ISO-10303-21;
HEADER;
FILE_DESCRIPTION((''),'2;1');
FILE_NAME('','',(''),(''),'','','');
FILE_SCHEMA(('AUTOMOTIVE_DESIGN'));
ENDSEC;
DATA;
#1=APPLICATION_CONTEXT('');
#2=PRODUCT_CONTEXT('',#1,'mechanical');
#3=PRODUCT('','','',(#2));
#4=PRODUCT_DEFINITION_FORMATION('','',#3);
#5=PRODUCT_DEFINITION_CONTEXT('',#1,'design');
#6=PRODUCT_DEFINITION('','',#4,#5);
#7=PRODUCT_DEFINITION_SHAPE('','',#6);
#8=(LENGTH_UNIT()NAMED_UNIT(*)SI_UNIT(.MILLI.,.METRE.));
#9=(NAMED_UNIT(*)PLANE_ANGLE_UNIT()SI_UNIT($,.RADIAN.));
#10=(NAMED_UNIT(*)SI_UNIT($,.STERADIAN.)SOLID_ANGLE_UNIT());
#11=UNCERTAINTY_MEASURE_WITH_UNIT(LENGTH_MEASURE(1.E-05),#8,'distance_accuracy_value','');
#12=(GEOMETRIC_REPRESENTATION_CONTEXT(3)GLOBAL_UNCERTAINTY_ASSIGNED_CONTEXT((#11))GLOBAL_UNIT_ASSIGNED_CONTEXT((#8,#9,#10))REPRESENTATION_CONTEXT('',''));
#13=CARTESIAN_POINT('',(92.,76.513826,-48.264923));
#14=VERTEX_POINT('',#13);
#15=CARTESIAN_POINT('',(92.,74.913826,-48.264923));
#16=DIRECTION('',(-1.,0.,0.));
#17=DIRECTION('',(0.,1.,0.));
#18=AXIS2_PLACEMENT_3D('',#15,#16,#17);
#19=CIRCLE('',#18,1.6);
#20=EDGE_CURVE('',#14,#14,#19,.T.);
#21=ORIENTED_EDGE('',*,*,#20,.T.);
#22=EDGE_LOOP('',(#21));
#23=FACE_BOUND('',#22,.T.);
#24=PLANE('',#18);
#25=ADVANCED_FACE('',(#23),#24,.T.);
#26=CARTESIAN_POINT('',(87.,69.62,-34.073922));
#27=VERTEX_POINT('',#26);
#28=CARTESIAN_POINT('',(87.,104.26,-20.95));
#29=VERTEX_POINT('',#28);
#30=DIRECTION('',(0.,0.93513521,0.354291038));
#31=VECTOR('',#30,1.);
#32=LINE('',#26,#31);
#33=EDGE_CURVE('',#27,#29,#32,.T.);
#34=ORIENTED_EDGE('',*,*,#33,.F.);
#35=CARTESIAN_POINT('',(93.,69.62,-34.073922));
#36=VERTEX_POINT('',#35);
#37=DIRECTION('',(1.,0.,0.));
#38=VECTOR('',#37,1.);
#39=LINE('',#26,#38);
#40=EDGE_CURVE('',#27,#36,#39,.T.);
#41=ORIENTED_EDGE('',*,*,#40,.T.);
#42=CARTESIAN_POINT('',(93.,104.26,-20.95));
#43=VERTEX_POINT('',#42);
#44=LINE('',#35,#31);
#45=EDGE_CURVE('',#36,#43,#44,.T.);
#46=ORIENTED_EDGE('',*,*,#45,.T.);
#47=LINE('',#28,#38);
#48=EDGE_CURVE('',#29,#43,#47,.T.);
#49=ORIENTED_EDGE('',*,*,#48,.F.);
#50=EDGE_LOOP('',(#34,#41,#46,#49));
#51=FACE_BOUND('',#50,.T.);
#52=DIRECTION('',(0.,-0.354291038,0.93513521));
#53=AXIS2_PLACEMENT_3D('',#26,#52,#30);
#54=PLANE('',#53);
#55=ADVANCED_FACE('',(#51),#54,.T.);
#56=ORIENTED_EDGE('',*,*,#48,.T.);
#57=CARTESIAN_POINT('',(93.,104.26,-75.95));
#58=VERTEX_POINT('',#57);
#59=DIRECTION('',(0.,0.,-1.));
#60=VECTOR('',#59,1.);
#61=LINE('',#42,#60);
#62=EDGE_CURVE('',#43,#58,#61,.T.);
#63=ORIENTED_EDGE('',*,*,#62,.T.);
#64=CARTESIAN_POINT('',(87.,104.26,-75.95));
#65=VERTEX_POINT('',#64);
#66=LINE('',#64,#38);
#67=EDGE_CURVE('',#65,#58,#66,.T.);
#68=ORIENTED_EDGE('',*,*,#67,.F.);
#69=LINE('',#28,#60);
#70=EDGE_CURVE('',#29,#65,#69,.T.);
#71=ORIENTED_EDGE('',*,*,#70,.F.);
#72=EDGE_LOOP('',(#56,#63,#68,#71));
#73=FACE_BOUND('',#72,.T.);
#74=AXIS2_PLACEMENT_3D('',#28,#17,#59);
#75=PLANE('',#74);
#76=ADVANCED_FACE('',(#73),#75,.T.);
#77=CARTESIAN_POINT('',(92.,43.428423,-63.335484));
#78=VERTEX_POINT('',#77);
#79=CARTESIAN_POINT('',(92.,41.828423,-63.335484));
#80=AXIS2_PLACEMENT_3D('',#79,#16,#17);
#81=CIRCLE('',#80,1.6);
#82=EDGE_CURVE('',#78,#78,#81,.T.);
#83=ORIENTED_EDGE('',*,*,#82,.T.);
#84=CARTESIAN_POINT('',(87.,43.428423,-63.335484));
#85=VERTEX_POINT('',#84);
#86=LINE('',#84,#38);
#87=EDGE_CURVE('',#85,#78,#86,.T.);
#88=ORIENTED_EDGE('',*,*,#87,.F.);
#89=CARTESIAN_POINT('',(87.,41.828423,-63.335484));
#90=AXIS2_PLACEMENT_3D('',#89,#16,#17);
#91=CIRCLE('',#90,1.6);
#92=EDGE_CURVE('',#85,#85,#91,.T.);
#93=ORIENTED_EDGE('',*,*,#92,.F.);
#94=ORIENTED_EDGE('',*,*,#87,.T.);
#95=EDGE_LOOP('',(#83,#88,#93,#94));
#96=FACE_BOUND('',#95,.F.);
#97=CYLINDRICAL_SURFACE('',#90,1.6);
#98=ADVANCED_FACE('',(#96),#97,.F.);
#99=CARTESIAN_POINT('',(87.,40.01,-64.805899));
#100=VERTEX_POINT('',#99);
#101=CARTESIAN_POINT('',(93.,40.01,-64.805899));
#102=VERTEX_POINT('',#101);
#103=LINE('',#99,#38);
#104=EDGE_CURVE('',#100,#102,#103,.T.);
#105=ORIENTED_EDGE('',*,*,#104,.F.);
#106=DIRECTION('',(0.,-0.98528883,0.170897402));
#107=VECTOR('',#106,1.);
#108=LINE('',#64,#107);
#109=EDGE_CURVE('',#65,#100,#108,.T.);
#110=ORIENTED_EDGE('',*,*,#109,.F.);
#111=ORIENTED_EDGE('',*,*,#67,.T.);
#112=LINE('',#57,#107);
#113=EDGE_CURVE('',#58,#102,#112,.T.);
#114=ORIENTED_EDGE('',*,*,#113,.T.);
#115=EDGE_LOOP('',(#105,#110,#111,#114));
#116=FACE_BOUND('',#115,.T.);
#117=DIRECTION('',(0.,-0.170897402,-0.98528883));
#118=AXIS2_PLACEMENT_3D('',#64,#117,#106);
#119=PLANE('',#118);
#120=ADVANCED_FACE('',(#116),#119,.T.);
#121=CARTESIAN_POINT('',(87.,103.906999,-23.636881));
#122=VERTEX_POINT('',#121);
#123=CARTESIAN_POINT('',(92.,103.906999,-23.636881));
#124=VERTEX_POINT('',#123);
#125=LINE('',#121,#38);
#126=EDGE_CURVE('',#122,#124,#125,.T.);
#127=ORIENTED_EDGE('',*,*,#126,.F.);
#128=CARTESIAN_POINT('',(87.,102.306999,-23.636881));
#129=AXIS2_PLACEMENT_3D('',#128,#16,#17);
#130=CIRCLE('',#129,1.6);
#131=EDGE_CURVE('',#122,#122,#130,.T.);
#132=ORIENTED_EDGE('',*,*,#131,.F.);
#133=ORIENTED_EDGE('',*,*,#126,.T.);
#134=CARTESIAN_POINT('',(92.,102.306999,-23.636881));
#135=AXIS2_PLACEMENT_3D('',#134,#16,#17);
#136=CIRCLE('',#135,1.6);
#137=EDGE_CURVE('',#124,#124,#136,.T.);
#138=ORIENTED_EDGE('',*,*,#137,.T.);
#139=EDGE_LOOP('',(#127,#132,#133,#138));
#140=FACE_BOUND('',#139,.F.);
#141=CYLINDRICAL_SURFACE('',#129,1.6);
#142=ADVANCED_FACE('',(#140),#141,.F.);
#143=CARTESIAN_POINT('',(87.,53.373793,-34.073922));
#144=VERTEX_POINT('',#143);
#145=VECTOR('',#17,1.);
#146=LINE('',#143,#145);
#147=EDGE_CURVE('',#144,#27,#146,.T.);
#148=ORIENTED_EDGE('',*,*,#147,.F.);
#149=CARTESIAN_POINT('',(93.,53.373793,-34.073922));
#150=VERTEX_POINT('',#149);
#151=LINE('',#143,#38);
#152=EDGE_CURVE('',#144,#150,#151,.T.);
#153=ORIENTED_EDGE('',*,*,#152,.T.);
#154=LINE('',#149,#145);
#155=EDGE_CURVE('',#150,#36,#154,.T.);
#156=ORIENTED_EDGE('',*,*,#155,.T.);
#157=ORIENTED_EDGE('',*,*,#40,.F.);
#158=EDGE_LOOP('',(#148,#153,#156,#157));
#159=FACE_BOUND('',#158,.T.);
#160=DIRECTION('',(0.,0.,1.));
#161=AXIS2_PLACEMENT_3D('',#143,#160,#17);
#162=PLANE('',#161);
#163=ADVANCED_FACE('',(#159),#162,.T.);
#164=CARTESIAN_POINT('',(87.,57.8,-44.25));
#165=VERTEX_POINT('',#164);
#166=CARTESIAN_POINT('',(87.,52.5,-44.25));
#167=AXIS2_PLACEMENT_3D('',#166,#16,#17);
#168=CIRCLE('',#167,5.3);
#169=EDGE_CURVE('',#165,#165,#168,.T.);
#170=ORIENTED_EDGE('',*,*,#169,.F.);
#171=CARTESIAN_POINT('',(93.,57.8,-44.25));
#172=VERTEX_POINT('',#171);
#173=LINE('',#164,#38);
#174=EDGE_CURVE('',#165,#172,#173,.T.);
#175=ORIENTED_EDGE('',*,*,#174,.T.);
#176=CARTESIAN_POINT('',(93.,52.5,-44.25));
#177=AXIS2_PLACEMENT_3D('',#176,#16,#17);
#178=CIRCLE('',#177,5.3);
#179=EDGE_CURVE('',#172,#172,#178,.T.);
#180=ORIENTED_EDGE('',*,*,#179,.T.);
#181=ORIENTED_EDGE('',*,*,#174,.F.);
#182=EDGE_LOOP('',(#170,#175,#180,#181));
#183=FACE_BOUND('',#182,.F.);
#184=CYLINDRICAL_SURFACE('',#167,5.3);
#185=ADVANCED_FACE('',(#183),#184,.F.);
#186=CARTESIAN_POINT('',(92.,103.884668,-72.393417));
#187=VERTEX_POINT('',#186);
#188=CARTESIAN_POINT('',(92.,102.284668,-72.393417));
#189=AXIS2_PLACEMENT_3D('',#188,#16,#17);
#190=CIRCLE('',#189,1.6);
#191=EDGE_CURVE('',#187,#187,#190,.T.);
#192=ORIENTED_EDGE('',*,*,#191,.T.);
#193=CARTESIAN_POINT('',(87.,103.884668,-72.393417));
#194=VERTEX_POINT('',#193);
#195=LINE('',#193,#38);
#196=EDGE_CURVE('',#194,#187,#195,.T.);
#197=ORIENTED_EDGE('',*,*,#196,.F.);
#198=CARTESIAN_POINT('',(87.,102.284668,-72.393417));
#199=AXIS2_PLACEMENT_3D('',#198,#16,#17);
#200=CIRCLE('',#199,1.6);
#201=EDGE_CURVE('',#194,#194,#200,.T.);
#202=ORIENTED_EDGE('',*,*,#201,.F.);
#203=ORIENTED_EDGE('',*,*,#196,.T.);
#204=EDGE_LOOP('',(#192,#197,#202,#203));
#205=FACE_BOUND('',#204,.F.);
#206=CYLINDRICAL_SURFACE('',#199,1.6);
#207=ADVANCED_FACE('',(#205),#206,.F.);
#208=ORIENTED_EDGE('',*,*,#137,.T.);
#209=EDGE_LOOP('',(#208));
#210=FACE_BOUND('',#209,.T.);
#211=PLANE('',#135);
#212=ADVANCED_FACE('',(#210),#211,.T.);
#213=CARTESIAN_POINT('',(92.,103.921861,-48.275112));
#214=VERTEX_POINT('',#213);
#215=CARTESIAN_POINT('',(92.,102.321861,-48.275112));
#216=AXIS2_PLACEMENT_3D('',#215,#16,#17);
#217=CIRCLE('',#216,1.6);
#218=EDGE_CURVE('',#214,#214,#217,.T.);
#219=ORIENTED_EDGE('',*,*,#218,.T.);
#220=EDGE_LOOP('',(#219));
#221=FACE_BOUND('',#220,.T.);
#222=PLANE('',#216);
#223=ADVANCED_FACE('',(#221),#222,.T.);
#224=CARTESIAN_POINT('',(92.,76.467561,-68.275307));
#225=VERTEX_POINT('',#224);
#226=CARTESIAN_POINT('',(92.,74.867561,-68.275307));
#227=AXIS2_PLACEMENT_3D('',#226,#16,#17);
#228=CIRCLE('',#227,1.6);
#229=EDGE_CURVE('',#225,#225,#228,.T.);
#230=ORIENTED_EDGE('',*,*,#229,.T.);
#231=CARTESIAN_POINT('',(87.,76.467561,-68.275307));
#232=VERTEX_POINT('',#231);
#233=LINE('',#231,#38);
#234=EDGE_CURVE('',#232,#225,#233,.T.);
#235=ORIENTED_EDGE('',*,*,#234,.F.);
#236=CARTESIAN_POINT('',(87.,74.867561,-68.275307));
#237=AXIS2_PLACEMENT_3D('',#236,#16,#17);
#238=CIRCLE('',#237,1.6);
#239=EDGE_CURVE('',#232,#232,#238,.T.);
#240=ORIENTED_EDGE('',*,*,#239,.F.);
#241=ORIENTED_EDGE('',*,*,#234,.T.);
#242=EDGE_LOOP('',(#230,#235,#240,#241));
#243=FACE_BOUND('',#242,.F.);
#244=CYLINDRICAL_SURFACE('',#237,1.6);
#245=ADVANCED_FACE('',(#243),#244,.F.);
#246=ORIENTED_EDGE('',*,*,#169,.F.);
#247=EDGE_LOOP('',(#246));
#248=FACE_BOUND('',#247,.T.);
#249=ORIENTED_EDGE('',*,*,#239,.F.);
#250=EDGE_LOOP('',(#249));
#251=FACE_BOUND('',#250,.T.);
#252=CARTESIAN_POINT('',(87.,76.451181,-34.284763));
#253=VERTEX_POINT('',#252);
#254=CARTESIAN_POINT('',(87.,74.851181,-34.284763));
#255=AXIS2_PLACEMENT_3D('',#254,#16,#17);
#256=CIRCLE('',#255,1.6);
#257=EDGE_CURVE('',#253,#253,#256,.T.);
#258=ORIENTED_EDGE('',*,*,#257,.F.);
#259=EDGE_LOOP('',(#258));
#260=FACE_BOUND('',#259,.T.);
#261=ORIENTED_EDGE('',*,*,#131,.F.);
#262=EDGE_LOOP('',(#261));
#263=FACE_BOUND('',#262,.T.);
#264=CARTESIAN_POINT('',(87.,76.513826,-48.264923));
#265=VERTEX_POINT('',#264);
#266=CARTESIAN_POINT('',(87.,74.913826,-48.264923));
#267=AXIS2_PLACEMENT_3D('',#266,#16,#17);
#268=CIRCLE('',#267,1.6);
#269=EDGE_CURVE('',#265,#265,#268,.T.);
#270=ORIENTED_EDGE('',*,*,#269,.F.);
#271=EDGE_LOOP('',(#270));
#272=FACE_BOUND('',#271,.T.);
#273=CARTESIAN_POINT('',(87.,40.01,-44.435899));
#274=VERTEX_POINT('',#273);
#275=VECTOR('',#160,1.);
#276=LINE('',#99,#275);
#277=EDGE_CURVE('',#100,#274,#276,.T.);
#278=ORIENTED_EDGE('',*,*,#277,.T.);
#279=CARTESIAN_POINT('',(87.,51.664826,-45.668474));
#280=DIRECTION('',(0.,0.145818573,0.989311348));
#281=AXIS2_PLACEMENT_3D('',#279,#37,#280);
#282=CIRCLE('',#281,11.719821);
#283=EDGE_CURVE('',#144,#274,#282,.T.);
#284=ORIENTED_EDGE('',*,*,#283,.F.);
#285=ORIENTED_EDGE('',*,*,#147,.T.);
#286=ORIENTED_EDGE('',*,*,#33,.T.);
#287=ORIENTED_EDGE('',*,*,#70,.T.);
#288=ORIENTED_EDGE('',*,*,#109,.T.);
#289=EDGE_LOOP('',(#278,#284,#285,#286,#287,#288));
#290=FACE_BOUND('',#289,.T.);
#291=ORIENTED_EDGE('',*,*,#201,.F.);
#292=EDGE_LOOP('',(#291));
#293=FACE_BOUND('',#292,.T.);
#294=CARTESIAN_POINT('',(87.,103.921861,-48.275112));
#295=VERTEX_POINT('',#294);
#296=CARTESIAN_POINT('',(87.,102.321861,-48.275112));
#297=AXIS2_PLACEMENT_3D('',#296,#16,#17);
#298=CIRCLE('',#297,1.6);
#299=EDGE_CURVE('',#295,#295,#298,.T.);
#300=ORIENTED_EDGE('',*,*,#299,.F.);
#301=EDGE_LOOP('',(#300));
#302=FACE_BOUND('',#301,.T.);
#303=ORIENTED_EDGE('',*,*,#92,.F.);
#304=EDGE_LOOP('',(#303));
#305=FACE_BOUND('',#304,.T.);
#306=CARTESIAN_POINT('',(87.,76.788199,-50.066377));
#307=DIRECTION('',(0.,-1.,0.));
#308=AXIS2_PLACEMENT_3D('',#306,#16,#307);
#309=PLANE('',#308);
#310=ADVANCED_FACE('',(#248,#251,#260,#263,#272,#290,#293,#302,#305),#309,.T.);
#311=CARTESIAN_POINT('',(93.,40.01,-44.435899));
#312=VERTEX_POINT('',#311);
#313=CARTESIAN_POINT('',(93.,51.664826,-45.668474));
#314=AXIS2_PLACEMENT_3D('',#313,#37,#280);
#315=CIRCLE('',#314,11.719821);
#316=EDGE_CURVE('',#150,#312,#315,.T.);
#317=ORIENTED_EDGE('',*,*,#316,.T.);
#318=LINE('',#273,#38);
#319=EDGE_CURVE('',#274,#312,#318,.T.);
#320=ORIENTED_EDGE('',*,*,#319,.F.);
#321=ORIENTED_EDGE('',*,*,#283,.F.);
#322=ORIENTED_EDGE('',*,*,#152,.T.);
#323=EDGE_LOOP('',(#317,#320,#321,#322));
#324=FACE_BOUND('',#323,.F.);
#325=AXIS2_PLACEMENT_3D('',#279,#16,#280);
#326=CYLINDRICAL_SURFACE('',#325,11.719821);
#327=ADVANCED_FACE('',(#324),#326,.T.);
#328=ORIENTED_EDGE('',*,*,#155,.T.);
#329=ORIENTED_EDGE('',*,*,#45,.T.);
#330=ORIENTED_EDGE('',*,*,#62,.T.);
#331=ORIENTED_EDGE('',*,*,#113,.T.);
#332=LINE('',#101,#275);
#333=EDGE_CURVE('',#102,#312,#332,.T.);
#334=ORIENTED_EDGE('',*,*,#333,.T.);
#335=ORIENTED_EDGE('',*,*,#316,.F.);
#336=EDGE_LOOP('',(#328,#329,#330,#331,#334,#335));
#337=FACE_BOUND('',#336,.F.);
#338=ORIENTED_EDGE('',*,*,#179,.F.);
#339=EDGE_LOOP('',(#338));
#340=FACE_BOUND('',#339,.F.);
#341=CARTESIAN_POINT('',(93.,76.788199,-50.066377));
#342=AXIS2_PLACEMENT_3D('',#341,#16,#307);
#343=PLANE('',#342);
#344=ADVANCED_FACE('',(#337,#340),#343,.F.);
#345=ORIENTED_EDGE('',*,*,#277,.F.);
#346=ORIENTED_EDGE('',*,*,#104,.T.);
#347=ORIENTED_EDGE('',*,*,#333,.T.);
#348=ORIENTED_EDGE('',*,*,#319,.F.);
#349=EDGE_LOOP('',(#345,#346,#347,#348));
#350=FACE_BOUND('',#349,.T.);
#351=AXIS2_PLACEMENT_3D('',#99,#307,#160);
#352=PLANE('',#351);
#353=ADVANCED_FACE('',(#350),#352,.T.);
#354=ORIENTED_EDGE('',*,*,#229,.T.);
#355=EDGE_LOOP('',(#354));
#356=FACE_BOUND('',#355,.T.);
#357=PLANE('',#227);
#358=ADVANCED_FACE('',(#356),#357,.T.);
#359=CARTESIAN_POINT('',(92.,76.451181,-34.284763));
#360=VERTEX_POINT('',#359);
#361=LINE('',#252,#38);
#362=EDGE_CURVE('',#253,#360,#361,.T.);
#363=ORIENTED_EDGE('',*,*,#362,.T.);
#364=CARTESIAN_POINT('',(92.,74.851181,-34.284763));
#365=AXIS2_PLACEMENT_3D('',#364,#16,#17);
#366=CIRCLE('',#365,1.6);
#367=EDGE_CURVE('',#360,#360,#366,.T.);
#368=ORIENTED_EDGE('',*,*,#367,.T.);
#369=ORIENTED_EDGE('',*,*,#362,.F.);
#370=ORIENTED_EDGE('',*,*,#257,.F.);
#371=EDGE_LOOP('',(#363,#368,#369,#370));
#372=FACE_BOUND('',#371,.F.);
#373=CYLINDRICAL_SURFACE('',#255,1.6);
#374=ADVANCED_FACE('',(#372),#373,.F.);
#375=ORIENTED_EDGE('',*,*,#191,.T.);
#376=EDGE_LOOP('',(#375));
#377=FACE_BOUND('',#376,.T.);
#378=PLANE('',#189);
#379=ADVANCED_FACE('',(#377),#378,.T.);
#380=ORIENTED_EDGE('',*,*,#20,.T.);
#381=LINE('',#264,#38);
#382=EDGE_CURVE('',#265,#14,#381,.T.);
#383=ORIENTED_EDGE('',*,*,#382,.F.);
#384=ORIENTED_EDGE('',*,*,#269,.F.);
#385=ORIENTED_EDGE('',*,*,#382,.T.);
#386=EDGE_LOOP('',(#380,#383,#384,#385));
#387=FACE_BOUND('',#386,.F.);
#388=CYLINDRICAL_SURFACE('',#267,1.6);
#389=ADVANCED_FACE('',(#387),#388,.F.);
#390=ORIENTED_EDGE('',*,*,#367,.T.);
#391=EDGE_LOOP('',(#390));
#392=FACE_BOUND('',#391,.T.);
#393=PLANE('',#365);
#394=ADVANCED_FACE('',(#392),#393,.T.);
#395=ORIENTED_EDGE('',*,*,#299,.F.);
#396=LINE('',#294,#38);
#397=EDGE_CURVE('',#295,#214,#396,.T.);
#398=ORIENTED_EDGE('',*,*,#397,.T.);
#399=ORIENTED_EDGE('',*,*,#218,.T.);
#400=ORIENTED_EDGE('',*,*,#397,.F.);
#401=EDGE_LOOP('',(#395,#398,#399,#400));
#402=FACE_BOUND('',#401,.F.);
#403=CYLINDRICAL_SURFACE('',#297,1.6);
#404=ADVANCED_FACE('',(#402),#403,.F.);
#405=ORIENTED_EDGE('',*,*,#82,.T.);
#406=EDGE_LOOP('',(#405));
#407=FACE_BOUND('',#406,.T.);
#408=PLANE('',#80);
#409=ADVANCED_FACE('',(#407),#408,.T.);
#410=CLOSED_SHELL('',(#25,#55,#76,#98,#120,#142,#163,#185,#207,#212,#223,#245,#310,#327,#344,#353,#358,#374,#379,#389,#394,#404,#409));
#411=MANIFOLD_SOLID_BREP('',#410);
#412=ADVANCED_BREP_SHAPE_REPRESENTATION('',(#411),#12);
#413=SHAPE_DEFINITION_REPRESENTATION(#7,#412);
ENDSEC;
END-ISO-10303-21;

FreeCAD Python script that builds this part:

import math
import FreeCAD as App
import Part
import Sketcher

V = App.Vector
Q = App.Units.Quantity

doc = App.newDocument("Part")
params = doc.addObject("Spreadsheet::Sheet", "Params")
for row, (alias, value) in enumerate([
    ("sketch1_height", "55 mm"),
    ("sketch1_height2", "20.37 mm"),
    ("pad1_length", "6 mm"),
    ("sketch2_diameter", "10.6 mm"),
    ("pocket1_length", "6 mm"),
    ("sketch3_diameter", "3.2 mm"),
    ("pocket2_length", "5 mm"),
], start=1):
    params.set(f"A{row}", alias)
    params.set(f"B{row}", "=" + value)
    params.setAlias(f"B{row}", alias)

body = doc.addObject("PartDesign::Body", "Body")

# Sketch on YZ plane
sketch1 = doc.addObject("Sketcher::SketchObject", "Sketch")
body.addObject(sketch1)
sketch1.AttachmentSupport = (doc.YZ_Plane, [""])
sketch1.MapMode = "FlatFace"
sketch1.addGeometry([
    Part.LineSegment(V(104, -21, 0), V(70, -34, 0)),  # 0
    Part.LineSegment(V(70, -34, 0), V(53, -34, 0)),  # 1
    Part.ArcOfCircle(Part.Circle(V(52, -46, 0), V(0, 0, 1), 12), math.radians(82), math.radians(174)),  # 2
    Part.LineSegment(V(40, -44, 0), V(40, -65, 0)),  # 3
    Part.LineSegment(V(40, -65, 0), V(104, -76, 0)),  # 4
    Part.LineSegment(V(104, -76, 0), V(104, -21, 0)),  # 5
], False)
sketch1.addConstraint([
    Sketcher.Constraint("Coincident", 0, 2, 1, 1),
    Sketcher.Constraint("Coincident", 1, 2, 2, 1),
    Sketcher.Constraint("Coincident", 2, 2, 3, 1),
    Sketcher.Constraint("Coincident", 3, 2, 4, 1),
    Sketcher.Constraint("Coincident", 4, 2, 5, 1),
    Sketcher.Constraint("Coincident", 5, 2, 0, 1),
    Sketcher.Constraint("Horizontal", 1),
    Sketcher.Constraint("Vertical", 3),
    Sketcher.Constraint("Vertical", 5),
    Sketcher.Constraint("DistanceY", 5, 1, 5, 2, 55.0),
    Sketcher.Constraint("DistanceY", 3, 2, 3, 1, 20.37),
    Sketcher.Constraint("Angle", 0, Q("-159.25 deg")),
    Sketcher.Constraint("Angle", 4, Q("-9.84 deg")),
    Sketcher.Constraint("DistanceX", -1, 1, 0, 2, 69.62),
    Sketcher.Constraint("DistanceX", -1, 1, 2, 2, 40.01),
    Sketcher.Constraint("DistanceX", -1, 1, 4, 2, 104.26),
    Sketcher.Constraint("DistanceY", 4, 2, -1, 1, 75.95),
    Sketcher.Constraint("Radius", 2, 11.719821),
    Sketcher.Constraint("DistanceX", 1, 2, 1, 1, 16.246207),
])
sketch1.setExpression("Constraints[9]", "Params.sketch1_height")
sketch1.setExpression("Constraints[10]", "Params.sketch1_height2")
pad1 = doc.addObject("PartDesign::Pad", "Pad")
body.addObject(pad1)
pad1.Profile = sketch1
pad1.setExpression("Length", "Params.pad1_length")

# Sketch on YZ plane
sketch2 = doc.addObject("Sketcher::SketchObject", "Sketch001")
body.addObject(sketch2)
sketch2.AttachmentSupport = (doc.YZ_Plane, [""])
sketch2.MapMode = "FlatFace"
sketch2.addGeometry(Part.Circle(V(52, -44, 0), V(0, 0, 1), 5), False)
sketch2.addConstraint([
    Sketcher.Constraint("Diameter", 0, 10.6),
    Sketcher.Constraint("DistanceX", -1, 1, 0, 3, 52.5),
    Sketcher.Constraint("DistanceY", 0, 3, -1, 1, 44.25),
])
sketch2.setExpression("Constraints[0]", "Params.sketch2_diameter")
pocket1 = doc.addObject("PartDesign::Pocket", "Pocket")
body.addObject(pocket1)
pocket1.Profile = sketch2
pocket1.setExpression("Length", "Params.pocket1_length")
pocket1.Reversed = True

# Sketch on YZ plane
sketch3 = doc.addObject("Sketcher::SketchObject", "Sketch002")
body.addObject(sketch3)
sketch3.AttachmentSupport = (doc.YZ_Plane, [""])
sketch3.MapMode = "FlatFace"
sketch3.addGeometry([
    Part.Circle(V(74.9, -48.3, 0), V(0, 0, 1), 1.6),  # 0
    Part.Circle(V(74.9, -34.3, 0), V(0, 0, 1), 1.6),  # 1
    Part.Circle(V(41.8, -63.3, 0), V(0, 0, 1), 1.6),  # 2
    Part.Circle(V(74.9, -68.3, 0), V(0, 0, 1), 1.6),  # 3
    Part.Circle(V(102.3, -48.3, 0), V(0, 0, 1), 1.6),  # 4
    Part.Circle(V(102.3, -23.6, 0), V(0, 0, 1), 1.6),  # 5
    Part.Circle(V(102.3, -72.4, 0), V(0, 0, 1), 1.6),  # 6
], False)
sketch3.addConstraint([
    Sketcher.Constraint("Equal", 0, 1),
    Sketcher.Constraint("Equal", 1, 2),
    Sketcher.Constraint("Equal", 2, 3),
    Sketcher.Constraint("Equal", 3, 4),
    Sketcher.Constraint("Equal", 4, 5),
    Sketcher.Constraint("Equal", 5, 6),
    Sketcher.Constraint("Diameter", 0, 3.2),
    Sketcher.Constraint("DistanceX", -1, 1, 5, 3, 102.306999),
    Sketcher.Constraint("DistanceX", 3, 3, 4, 3, 27.4543),
    Sketcher.Constraint("DistanceX", -1, 1, 1, 3, 74.851181),
    Sketcher.Constraint("DistanceX", -1, 1, 3, 3, 74.867561),
    Sketcher.Constraint("DistanceY", 5, 3, -1, 1, 23.636881),
    Sketcher.Constraint("DistanceY", 0, 3, 1, 3, 13.98016),
    Sketcher.Constraint("DistanceY", 2, 3, 0, 3, 15.070561),
    Sketcher.Constraint("DistanceY", 4, 3, 0, 3, 0.010189),
    Sketcher.Constraint("DistanceY", 4, 3, 5, 3, 24.638231),
    Sketcher.Constraint("DistanceY", 6, 3, 3, 3, 4.11811),
    Sketcher.Constraint("DistanceX", 0, 3, 6, 3, 27.370842),
    Sketcher.Constraint("DistanceX", 6, 3, 5, 3, 0.022331),
    Sketcher.Constraint("DistanceX", -1, 1, 2, 3, 41.828423),
    Sketcher.Constraint("DistanceY", 3, 3, -1, 1, 68.275307),
])
sketch3.setExpression("Constraints[6]", "Params.sketch3_diameter")
pocket2 = doc.addObject("PartDesign::Pocket", "Pocket001")
body.addObject(pocket2)
pocket2.Profile = sketch3
pocket2.setExpression("Length", "Params.pocket2_length")
pocket2.Reversed = True
body2 = doc.addObject("PartDesign::Body", "Body001")
doc.recompute()

body.Placement = App.Placement(V(87, 0, 0), App.Rotation(V(0, 0, 1), 0))
boolean = doc.addObject("PartDesign::Boolean", "Boolean")
body2.addObject(boolean)
boolean.Type = "Fuse"
boolean.addObjects([body])

doc.recompute()
